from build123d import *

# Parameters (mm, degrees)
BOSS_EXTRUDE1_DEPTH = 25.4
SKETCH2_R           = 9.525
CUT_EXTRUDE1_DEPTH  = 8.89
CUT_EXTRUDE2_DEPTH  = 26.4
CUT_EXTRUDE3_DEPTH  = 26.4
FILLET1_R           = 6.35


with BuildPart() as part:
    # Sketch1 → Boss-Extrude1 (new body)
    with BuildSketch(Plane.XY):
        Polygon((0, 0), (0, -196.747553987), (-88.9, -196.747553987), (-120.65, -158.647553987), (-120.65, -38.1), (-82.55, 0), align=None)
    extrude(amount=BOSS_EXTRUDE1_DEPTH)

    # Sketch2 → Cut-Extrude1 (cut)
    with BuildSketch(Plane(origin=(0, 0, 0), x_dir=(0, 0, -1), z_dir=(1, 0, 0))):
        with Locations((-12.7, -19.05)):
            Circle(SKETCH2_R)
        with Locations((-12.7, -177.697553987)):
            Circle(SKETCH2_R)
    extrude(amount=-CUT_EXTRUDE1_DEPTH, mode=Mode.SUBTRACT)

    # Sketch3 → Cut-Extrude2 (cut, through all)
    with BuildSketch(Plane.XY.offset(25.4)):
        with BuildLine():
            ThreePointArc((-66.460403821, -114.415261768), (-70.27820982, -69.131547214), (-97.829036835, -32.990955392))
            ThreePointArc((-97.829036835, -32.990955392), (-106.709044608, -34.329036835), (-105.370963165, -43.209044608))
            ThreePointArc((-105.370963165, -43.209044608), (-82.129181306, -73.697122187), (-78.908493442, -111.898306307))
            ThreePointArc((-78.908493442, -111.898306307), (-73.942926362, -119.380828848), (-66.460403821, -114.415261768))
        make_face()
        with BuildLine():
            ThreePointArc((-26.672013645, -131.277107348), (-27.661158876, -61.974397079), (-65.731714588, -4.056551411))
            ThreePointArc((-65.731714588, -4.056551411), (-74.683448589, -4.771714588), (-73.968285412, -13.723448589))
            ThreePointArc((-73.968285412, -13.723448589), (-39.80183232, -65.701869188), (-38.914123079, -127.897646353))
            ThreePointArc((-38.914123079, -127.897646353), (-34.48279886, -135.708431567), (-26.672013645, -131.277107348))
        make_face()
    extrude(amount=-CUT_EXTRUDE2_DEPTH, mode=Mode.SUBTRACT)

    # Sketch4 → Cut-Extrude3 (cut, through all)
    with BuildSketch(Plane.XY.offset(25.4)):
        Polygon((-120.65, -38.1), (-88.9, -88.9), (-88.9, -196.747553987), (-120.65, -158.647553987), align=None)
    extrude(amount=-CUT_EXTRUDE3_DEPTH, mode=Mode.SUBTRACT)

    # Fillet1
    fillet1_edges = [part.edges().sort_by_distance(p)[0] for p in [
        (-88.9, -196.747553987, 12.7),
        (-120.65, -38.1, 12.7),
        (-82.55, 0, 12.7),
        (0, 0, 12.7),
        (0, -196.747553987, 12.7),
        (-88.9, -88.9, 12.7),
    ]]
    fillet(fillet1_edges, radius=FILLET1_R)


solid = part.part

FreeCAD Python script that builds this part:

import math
import FreeCAD as App
import Part
import Sketcher
Q = App.Units.Quantity


def edges_at(feature, points):
    """Names of the edges that pass closest to the given points."""
    edges = feature.Shape.Edges
    near = lambda p: min(range(len(edges)), key=lambda i: edges[i].distToShape(Part.Vertex(*p))[0])
    return sorted({f"Edge{near(p) + 1}" for p in points})


def add_polygon(sketch, points):
    """Adds a closed chain of lines whose ends are joined by coincident constraints."""
    first, n = sketch.GeometryCount, len(points)
    for a, b in zip(points, points[1:] + points[:1]):
        sketch.addGeometry(Part.LineSegment(App.Vector(*a, 0), App.Vector(*b, 0)), False)
    for i in range(n):
        sketch.addConstraint(Sketcher.Constraint("Coincident", first + i, 2, first + (i + 1) % n, 1))

doc = App.newDocument("Part")
body = doc.addObject("PartDesign::Body", "Body")

# Sketch on XY plane
sketch1 = doc.addObject("Sketcher::SketchObject", "Sketch")
body.addObject(sketch1)
sketch1.AttachmentSupport = (doc.XY_Plane, [""])
sketch1.MapMode = "FlatFace"
add_polygon(sketch1, [(0, -197), (0, 0), (-83, 0), (-121, -38), (-121, -159), (-89, -197)])  # lines 0-5
sketch1.addConstraint([
    Sketcher.Constraint("Vertical", 0),
    Sketcher.Constraint("Horizontal", 1),
    Sketcher.Constraint("Vertical", 3),
    Sketcher.Constraint("Horizontal", 5),
    Sketcher.Constraint("Coincident", 0, 2, -1, 1),
    Sketcher.Constraint("DistanceX", 5, 1, 5, 2, Q("3.5 in")),
    Sketcher.Constraint("Angle", 2, Q("-135 deg")),
    Sketcher.Constraint("DistanceX", 1, 2, 1, 1, Q("3.25 in")),
    Sketcher.Constraint("DistanceY", 2, 2, -1, 1, Q("1.5 in")),
    Sketcher.Constraint("DistanceY", 4, 2, 3, 2, Q("1.5 in")),
    Sketcher.Constraint("DistanceY", 0, 1, 0, 2, 196.747554),
])
pad1 = doc.addObject("PartDesign::Pad", "Pad")
body.addObject(pad1)
pad1.Profile = sketch1
pad1.Length = Q("1 in")

# Sketch on YZ plane
sketch2 = doc.addObject("Sketcher::SketchObject", "Sketch001")
body.addObject(sketch2)
sketch2.AttachmentSupport = (doc.YZ_Plane, [""])
sketch2.MapMode = "FlatFace"
sketch2.addGeometry([
    Part.Circle(App.Vector(-19, 13, 0), App.Vector(0, 0, 1), 10),
    Part.Circle(App.Vector(-178, 13, 0), App.Vector(0, 0, 1), 10),
], False)
sketch2.addConstraint([
    Sketcher.Constraint("Equal", 0, 1),
    Sketcher.Constraint("Horizontal", 0, 3, 1, 3),
    Sketcher.Constraint("Diameter", 0, Q("0.75 in")),
    Sketcher.Constraint("DistanceY", -1, 1, 0, 3, Q("0.5 in")),
    Sketcher.Constraint("DistanceX", 0, 3, -1, 1, Q("0.75 in")),
    Sketcher.Constraint("DistanceX", 1, 3, -1, 1, 177.697554),
])
pocket1 = doc.addObject("PartDesign::Pocket", "Pocket")
body.addObject(pocket1)
pocket1.Profile = sketch2
pocket1.Length = Q("0.35 in")

# Sketch on XY plane
sketch3 = doc.addObject("Sketcher::SketchObject", "Sketch002")
body.addObject(sketch3)
sketch3.AttachmentSupport = (doc.XY_Plane, [""])
sketch3.MapMode = "FlatFace"
sketch3.AttachmentOffset = App.Placement(App.Vector(0, 0, 1 * 25.4), App.Rotation())
sketch3.addGeometry([
    Part.ArcOfCircle(Part.Circle(App.Vector(-146, -98, 0), App.Vector(0, 0, 1), 81), math.radians(-11), math.radians(54)),  # 0
    Part.ArcOfCircle(Part.Circle(App.Vector(-102, -38, 0), App.Vector(0, 0, 1), 6), math.radians(54), math.radians(234)),  # 1
    Part.ArcOfCircle(Part.Circle(App.Vector(-146, -98, 0), App.Vector(0, 0, 1), 69), math.radians(-11), math.radians(54)),  # 2
    Part.ArcOfCircle(Part.Circle(App.Vector(-73, -113, 0), App.Vector(0, 0, 1), 6), math.radians(169), math.radians(349)),  # 3
    Part.ArcOfCircle(Part.Circle(App.Vector(-146, -98, 0), App.Vector(0, 0, 1), 124), math.radians(-15), math.radians(50)),  # 4
    Part.ArcOfCircle(Part.Circle(App.Vector(-70, -9, 0), App.Vector(0, 0, 1), 6), math.radians(50), math.radians(230)),  # 5
    Part.ArcOfCircle(Part.Circle(App.Vector(-146, -98, 0), App.Vector(0, 0, 1), 111), math.radians(-15), math.radians(50)),  # 6
    Part.ArcOfCircle(Part.Circle(App.Vector(-33, -130, 0), App.Vector(0, 0, 1), 6), math.radians(165), math.radians(345)),  # 7
], False)
sketch3.addConstraint([
    Sketcher.Constraint("Tangent", 0, 2, 1, 1),
    Sketcher.Constraint("Tangent", 1, 2, 2, 2),
    Sketcher.Constraint("Tangent", 2, 1, 3, 1),
    Sketcher.Constraint("Tangent", 3, 2, 0, 1),
    Sketcher.Constraint("Tangent", 4, 2, 5, 1),
    Sketcher.Constraint("Tangent", 5, 2, 6, 2),
    Sketcher.Constraint("Tangent", 6, 1, 7, 1),
    Sketcher.Constraint("Tangent", 7, 2, 4, 1),
    Sketcher.Constraint("Coincident", 2, 3, 0, 3),
    Sketcher.Constraint("Coincident", 4, 3, 0, 3),
    Sketcher.Constraint("Coincident", 6, 3, 0, 3),
    Sketcher.Constraint("Equal", 3, 5),
    Sketcher.Constraint("Radius", 1, Q("0.25 in")),
    Sketcher.Constraint("DistanceX", 1, 3, -1, 1, Q("4 in")),
    Sketcher.Constraint("DistanceX", 4, 3, 5, 3, Q("3 in")),
    Sketcher.Constraint("DistanceY", 1, 3, -1, 1, Q("1.5 in")),
    Sketcher.Constraint("DistanceX", 0, 3, -1, 1, Q("5.75 in")),
    Sketcher.Constraint("DistanceY", 5, 3, -1, 1, Q("0.35 in")),
    Sketcher.Constraint("Radius", 0, 81.200241),
    Sketcher.Constraint("DistanceY", 6, 1, 1, 2, 84.688602),
    Sketcher.Constraint("DistanceY", 7, 2, 2, 1, 19.378801),
])
pocket2 = doc.addObject("PartDesign::Pocket", "Pocket001")
body.addObject(pocket2)
pocket2.Profile = sketch3
pocket2.Type = "ThroughAll"

# Sketch on XY plane
sketch4 = doc.addObject("Sketcher::SketchObject", "Sketch003")
body.addObject(sketch4)
sketch4.AttachmentSupport = (doc.XY_Plane, [""])
sketch4.MapMode = "FlatFace"
sketch4.AttachmentOffset = App.Placement(App.Vector(0, 0, 1 * 25.4), App.Rotation())
add_polygon(sketch4, [(-89, -89), (-121, -38), (-121, -159), (-89, -197)])  # lines 0-3
sketch4.addConstraint([
    Sketcher.Constraint("Vertical", 1),
    Sketcher.Constraint("Vertical", 3),
    Sketcher.Constraint("DistanceY", 3, 2, 0, 2, Q("2 in")),
    Sketcher.Constraint("DistanceY", 0, 2, -1, 1, Q("1.5 in")),
    Sketcher.Constraint("DistanceX", 2, 2, -1, 1, Q("3.5 in")),
    Sketcher.Constraint("DistanceY", 2, 2, 1, 2, Q("1.5 in")),
    Sketcher.Constraint("DistanceX", 0, 2, -1, 1, Q("4.75 in")),
    Sketcher.Constraint("DistanceY", 1, 2, 1, 1, 120.547554),
])
pocket3 = doc.addObject("PartDesign::Pocket", "Pocket002")
body.addObject(pocket3)
pocket3.Profile = sketch4
pocket3.Type = "ThroughAll"
doc.recompute()

fillet = doc.addObject("PartDesign::Fillet", "Fillet")
body.addObject(fillet)
fillet.Base = (pocket3, edges_at(pocket3, [
    (-88.9, -196.748, 12.7),
    (-120.65, -38.1, 12.7),
    (-82.55, 0, 12.7),
    (0, 0, 12.7),
    (0, -196.748, 12.7),
    (-88.9, -88.9, 12.7),
]))
fillet.Radius = Q("0.25 in")

doc.recompute()
